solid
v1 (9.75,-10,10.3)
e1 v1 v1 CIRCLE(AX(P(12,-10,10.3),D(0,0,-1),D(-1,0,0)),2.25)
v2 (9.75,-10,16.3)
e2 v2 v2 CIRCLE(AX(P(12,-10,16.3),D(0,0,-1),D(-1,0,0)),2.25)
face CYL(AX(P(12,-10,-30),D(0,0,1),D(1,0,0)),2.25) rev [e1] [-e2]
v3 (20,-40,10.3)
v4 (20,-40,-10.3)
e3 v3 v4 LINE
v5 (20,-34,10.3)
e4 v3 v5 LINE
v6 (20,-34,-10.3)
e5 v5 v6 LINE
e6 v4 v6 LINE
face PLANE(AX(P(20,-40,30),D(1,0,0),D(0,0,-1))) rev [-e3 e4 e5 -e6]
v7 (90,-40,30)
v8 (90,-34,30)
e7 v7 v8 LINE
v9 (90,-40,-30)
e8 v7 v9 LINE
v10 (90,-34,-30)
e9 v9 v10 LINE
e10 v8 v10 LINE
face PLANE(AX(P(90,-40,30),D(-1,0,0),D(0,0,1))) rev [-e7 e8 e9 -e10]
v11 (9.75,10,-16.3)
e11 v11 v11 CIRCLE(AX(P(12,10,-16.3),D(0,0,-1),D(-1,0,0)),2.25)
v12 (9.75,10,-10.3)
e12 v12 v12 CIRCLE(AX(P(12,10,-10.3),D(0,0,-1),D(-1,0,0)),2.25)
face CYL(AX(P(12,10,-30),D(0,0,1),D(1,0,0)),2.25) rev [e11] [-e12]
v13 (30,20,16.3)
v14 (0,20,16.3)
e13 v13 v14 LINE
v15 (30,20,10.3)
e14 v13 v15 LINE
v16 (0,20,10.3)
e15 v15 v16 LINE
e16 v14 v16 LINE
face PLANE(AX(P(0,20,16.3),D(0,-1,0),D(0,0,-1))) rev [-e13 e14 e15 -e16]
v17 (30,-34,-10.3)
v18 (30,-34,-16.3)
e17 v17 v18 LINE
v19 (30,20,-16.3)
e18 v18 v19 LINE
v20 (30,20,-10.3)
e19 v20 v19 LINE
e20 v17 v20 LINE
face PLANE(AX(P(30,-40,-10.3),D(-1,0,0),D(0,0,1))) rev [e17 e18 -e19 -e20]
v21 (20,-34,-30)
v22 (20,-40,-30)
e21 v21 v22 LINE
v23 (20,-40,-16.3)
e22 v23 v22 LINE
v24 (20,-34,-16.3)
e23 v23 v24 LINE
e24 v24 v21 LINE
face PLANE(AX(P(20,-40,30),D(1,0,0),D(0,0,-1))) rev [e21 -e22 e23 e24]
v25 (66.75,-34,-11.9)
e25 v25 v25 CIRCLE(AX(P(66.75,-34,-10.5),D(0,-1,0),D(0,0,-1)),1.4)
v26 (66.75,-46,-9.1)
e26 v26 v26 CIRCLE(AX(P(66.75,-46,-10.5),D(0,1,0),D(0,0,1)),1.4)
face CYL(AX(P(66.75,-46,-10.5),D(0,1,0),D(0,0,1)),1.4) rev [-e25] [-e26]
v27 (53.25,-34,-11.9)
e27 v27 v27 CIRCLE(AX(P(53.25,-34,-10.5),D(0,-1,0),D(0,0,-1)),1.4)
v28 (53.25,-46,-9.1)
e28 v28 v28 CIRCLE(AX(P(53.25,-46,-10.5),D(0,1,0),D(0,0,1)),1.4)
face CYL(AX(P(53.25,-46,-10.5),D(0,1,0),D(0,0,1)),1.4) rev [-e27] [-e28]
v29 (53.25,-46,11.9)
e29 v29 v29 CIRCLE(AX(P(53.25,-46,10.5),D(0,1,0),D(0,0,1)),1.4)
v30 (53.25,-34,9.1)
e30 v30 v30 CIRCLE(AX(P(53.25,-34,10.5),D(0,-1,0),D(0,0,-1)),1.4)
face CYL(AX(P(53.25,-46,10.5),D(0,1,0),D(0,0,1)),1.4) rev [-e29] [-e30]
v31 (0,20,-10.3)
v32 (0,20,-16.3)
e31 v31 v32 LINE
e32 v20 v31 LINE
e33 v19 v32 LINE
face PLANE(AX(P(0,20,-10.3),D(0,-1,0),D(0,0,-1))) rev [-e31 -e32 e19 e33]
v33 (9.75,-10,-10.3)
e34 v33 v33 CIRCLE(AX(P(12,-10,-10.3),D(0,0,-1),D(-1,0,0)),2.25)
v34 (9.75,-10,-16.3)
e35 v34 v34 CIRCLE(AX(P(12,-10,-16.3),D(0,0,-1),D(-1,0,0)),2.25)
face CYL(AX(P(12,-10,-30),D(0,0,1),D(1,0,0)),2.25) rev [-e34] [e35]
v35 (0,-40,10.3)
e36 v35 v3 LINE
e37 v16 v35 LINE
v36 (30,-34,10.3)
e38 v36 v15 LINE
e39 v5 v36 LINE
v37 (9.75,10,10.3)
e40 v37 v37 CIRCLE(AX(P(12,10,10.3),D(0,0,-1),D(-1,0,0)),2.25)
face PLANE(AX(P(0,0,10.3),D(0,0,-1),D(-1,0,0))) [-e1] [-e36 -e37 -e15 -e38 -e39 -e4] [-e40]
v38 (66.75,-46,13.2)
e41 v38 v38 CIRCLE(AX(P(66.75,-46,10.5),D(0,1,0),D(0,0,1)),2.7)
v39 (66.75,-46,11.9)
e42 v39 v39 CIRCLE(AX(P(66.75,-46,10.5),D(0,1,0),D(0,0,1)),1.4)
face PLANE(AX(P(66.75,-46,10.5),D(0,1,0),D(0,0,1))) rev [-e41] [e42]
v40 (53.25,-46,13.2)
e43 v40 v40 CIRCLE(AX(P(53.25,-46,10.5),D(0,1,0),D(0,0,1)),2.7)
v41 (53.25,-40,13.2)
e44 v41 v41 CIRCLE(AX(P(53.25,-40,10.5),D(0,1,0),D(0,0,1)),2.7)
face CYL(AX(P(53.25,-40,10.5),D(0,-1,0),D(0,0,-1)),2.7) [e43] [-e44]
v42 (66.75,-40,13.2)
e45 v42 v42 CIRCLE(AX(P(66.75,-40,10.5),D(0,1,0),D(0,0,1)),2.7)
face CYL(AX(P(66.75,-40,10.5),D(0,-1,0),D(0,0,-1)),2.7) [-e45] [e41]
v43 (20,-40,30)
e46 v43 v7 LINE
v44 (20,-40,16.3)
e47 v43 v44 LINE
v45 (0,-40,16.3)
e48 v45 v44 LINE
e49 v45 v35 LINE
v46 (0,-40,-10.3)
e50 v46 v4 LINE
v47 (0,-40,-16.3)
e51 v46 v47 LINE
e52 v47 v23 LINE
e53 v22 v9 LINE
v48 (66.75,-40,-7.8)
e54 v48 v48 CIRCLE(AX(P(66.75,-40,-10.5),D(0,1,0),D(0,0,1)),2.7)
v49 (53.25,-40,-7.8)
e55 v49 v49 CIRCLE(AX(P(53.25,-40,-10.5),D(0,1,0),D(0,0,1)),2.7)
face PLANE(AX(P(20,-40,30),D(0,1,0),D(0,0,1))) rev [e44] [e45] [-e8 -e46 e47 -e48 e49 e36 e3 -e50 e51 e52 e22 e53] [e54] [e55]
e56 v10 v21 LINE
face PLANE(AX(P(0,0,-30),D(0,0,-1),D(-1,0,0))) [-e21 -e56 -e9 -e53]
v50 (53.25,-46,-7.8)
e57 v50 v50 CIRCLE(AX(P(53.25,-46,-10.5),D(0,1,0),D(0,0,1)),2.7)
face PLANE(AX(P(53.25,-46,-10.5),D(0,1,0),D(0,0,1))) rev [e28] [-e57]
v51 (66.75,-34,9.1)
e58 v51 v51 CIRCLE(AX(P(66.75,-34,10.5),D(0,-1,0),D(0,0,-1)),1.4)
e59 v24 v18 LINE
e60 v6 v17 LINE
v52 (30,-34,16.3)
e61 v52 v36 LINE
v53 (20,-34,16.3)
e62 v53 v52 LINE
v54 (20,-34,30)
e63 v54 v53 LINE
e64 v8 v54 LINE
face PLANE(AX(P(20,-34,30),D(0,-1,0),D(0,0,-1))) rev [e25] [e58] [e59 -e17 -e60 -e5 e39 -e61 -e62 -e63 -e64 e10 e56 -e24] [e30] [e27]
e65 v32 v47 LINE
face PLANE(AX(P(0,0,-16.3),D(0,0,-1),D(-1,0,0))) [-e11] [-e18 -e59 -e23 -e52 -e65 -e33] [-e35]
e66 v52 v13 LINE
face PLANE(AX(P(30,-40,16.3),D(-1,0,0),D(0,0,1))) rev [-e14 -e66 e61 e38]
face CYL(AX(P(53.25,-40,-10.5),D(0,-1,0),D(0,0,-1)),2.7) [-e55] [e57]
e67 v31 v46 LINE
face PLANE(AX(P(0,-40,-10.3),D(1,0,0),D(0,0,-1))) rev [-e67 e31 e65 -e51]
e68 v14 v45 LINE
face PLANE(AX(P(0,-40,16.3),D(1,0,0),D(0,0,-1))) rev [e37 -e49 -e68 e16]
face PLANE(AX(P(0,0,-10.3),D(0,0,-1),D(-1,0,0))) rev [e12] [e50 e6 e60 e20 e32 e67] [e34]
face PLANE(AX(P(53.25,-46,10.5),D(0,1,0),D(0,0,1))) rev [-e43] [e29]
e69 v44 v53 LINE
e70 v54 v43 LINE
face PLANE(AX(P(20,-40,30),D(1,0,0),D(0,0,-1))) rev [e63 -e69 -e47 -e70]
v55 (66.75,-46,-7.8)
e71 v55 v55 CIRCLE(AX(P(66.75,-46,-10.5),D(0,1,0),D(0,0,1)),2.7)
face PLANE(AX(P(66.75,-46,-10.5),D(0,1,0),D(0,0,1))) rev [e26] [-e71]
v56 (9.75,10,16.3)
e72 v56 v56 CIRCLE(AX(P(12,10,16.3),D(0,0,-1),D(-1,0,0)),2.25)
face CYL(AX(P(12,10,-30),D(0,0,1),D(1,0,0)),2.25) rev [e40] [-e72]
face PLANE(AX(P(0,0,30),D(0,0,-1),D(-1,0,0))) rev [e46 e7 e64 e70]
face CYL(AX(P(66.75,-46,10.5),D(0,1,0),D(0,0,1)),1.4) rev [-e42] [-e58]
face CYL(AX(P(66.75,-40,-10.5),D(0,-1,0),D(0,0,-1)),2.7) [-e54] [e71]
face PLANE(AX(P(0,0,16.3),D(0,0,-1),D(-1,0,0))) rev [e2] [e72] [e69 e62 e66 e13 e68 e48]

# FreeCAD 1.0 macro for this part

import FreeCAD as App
import Part
import Sketcher
from FreeCAD import Vector
Q = App.Units.Quantity


def add_polygon(sketch, points):
    """Adds a closed chain of lines whose ends are joined by coincident constraints."""
    first, n = sketch.GeometryCount, len(points)
    for a, b in zip(points, points[1:] + points[:1]):
        sketch.addGeometry(Part.LineSegment(App.Vector(*a, 0), App.Vector(*b, 0)), False)
    for i in range(n):
        sketch.addConstraint(Sketcher.Constraint("Coincident", first + i, 2, first + (i + 1) % n, 1))

doc = App.newDocument("Part")
body = doc.addObject("PartDesign::Body", "Body")

sketch1 = body.newObject("Sketcher::SketchObject", "Sketch")
sketch1.AttachmentSupport = (doc.getObject("XY_Plane"), [""])
sketch1.MapMode = "FlatFace"
sketch1.AttachmentOffset = App.Placement(Vector(0, 0, -30), App.Rotation())
add_polygon(sketch1, [(20, -34), (20, -40), (90, -40), (90, -34)])
sketch1.addConstraint([
    Sketcher.Constraint("Vertical", 0),
    Sketcher.Constraint("Horizontal", 1),
    Sketcher.Constraint("Vertical", 2),
    Sketcher.Constraint("Horizontal", 3),
    Sketcher.Constraint("DistanceX", 1, 1, 1, 2, Q("70 mm")),
    Sketcher.Constraint("DistanceY", 0, 2, 0, 1, Q("6 mm")),
    Sketcher.Constraint("DistanceX", -1, 1, 0, 2, Q("20 mm")),
    Sketcher.Constraint("DistanceY", 0, 2, -1, 1, Q("40 mm")),
])
pad1 = body.newObject("PartDesign::Pad", "Pad")
pad1.Profile = sketch1
pad1.Length = 60

sketch2 = body.newObject("Sketcher::SketchObject", "Sketch001")
sketch2.AttachmentSupport = (doc.getObject("XY_Plane"), [""])
sketch2.MapMode = "FlatFace"
sketch2.AttachmentOffset = App.Placement(Vector(0, 0, -16.3), App.Rotation())
add_polygon(sketch2, [(0, 20), (0, -40), (30, -40), (30, 20)])
sketch2.addConstraint([
    Sketcher.Constraint("Vertical", 0),
    Sketcher.Constraint("Horizontal", 1),
    Sketcher.Constraint("Vertical", 2),
    Sketcher.Constraint("Horizontal", 3),
    Sketcher.Constraint("PointOnObject", 0, 2, -2),
    Sketcher.Constraint("DistanceX", 1, 1, 1, 2, Q("30 mm")),
    Sketcher.Constraint("DistanceY", 0, 2, 0, 1, Q("60 mm")),
    Sketcher.Constraint("DistanceY", 0, 2, -1, 1, Q("40 mm")),
])
pad2 = body.newObject("PartDesign::Pad", "Pad001")
pad2.Profile = sketch2
pad2.Length = 6

sketch3 = body.newObject("Sketcher::SketchObject", "Sketch002")
sketch3.AttachmentSupport = (doc.getObject("XY_Plane"), [""])
sketch3.MapMode = "FlatFace"
sketch3.AttachmentOffset = App.Placement(Vector(0, 0, 10.3), App.Rotation())
add_polygon(sketch3, [(0, 20), (0, -40), (30, -40), (30, 20)])
sketch3.addConstraint([
    Sketcher.Constraint("Vertical", 0),
    Sketcher.Constraint("Horizontal", 1),
    Sketcher.Constraint("Vertical", 2),
    Sketcher.Constraint("Horizontal", 3),
    Sketcher.Constraint("PointOnObject", 0, 2, -2),
    Sketcher.Constraint("DistanceX", 1, 1, 1, 2, Q("30 mm")),
    Sketcher.Constraint("DistanceY", 0, 2, 0, 1, Q("60 mm")),
    Sketcher.Constraint("DistanceY", 0, 2, -1, 1, Q("40 mm")),
])
pad3 = body.newObject("PartDesign::Pad", "Pad002")
pad3.Profile = sketch3
pad3.Length = 6

sketch4 = body.newObject("Sketcher::SketchObject", "Sketch003")
sketch4.AttachmentSupport = (doc.getObject("XY_Plane"), [""])
sketch4.MapMode = "FlatFace"
sketch4.addGeometry([
    Part.Circle(Vector(12, -10, 0), Vector(0, 0, 1), 2.2),
    Part.Circle(Vector(12, 10, 0), Vector(0, 0, 1), 2.2),
], False)
sketch4.addConstraint([
    Sketcher.Constraint("Equal", 0, 1),
    Sketcher.Constraint("Symmetric", 0, 3, 1, 3, -1),
    Sketcher.Constraint("Diameter", 0, Q("4.5 mm")),
    Sketcher.Constraint("DistanceX", -1, 1, 0, 3, Q("12 mm")),
    Sketcher.Constraint("DistanceY", 0, 3, -1, 1, Q("10 mm")),
])
pocket1 = body.newObject("PartDesign::Pocket", "Pocket")
pocket1.Profile = sketch4
pocket1.Type = "ThroughAll"
pocket1.Midplane = True

sketch5 = body.newObject("Sketcher::SketchObject", "Sketch004")
sketch5.AttachmentSupport = (doc.getObject("XZ_Plane"), [""])
sketch5.MapMode = "FlatFace"
sketch5.AttachmentOffset = App.Placement(Vector(0, 0, 46), App.Rotation())
sketch5.addGeometry([
    Part.Circle(Vector(53.2, 10.5, 0), Vector(0, 0, 1), 2.7),
    Part.Circle(Vector(53.2, -10.5, 0), Vector(0, 0, 1), 2.7),
    Part.Circle(Vector(66.8, 10.5, 0), Vector(0, 0, 1), 2.7),
    Part.Circle(Vector(66.8, -10.5, 0), Vector(0, 0, 1), 2.7),
], False)
sketch5.addConstraint([
    Sketcher.Constraint("Equal", 0, 1),
    Sketcher.Constraint("Equal", 1, 2),
    Sketcher.Constraint("Equal", 2, 3),
    Sketcher.Constraint("Symmetric", 0, 3, 1, 3, -1),
    Sketcher.Constraint("Symmetric", 2, 3, 3, 3, -1),
    Sketcher.Constraint("Horizontal", 0, 3, 2, 3),
    Sketcher.Constraint("Diameter", 0, Q("5.4 mm")),
    Sketcher.Constraint("DistanceY", 1, 3, 0, 3, Q("21 mm")),
    Sketcher.Constraint("DistanceX", 0, 3, 2, 3, Q("13.5 mm")),
    Sketcher.Constraint("DistanceX", -1, 1, 0, 3, Q("53.25 mm")),
])
pad4 = body.newObject("PartDesign::Pad", "Pad003")
pad4.Profile = sketch5
pad4.Length = 6
pad4.Reversed = True

sketch6 = body.newObject("Sketcher::SketchObject", "Sketch005")
sketch6.AttachmentSupport = (doc.getObject("XZ_Plane"), [""])
sketch6.MapMode = "FlatFace"
sketch6.addGeometry([
    Part.Circle(Vector(53.2, 10.5, 0), Vector(0, 0, 1), 1.4),
    Part.Circle(Vector(53.2, -10.5, 0), Vector(0, 0, 1), 1.4),
    Part.Circle(Vector(66.8, 10.5, 0), Vector(0, 0, 1), 1.4),
    Part.Circle(Vector(66.8, -10.5, 0), Vector(0, 0, 1), 1.4),
], False)
sketch6.addConstraint([
    Sketcher.Constraint("Equal", 0, 1),
    Sketcher.Constraint("Equal", 1, 2),
    Sketcher.Constraint("Equal", 2, 3),
    Sketcher.Constraint("Symmetric", 0, 3, 1, 3, -1),
    Sketcher.Constraint("Symmetric", 2, 3, 3, 3, -1),
    Sketcher.Constraint("Horizontal", 0, 3, 2, 3),
    Sketcher.Constraint("Diameter", 0, Q("2.8 mm")),
    Sketcher.Constraint("DistanceY", 1, 3, 0, 3, Q("21 mm")),
    Sketcher.Constraint("DistanceX", 0, 3, 2, 3, Q("13.5 mm")),
    Sketcher.Constraint("DistanceX", -1, 1, 0, 3, Q("53.25 mm")),
])
pocket2 = body.newObject("PartDesign::Pocket", "Pocket001")
pocket2.Profile = sketch6
pocket2.Type = "ThroughAll"
pocket2.Midplane = True

doc.recompute()
